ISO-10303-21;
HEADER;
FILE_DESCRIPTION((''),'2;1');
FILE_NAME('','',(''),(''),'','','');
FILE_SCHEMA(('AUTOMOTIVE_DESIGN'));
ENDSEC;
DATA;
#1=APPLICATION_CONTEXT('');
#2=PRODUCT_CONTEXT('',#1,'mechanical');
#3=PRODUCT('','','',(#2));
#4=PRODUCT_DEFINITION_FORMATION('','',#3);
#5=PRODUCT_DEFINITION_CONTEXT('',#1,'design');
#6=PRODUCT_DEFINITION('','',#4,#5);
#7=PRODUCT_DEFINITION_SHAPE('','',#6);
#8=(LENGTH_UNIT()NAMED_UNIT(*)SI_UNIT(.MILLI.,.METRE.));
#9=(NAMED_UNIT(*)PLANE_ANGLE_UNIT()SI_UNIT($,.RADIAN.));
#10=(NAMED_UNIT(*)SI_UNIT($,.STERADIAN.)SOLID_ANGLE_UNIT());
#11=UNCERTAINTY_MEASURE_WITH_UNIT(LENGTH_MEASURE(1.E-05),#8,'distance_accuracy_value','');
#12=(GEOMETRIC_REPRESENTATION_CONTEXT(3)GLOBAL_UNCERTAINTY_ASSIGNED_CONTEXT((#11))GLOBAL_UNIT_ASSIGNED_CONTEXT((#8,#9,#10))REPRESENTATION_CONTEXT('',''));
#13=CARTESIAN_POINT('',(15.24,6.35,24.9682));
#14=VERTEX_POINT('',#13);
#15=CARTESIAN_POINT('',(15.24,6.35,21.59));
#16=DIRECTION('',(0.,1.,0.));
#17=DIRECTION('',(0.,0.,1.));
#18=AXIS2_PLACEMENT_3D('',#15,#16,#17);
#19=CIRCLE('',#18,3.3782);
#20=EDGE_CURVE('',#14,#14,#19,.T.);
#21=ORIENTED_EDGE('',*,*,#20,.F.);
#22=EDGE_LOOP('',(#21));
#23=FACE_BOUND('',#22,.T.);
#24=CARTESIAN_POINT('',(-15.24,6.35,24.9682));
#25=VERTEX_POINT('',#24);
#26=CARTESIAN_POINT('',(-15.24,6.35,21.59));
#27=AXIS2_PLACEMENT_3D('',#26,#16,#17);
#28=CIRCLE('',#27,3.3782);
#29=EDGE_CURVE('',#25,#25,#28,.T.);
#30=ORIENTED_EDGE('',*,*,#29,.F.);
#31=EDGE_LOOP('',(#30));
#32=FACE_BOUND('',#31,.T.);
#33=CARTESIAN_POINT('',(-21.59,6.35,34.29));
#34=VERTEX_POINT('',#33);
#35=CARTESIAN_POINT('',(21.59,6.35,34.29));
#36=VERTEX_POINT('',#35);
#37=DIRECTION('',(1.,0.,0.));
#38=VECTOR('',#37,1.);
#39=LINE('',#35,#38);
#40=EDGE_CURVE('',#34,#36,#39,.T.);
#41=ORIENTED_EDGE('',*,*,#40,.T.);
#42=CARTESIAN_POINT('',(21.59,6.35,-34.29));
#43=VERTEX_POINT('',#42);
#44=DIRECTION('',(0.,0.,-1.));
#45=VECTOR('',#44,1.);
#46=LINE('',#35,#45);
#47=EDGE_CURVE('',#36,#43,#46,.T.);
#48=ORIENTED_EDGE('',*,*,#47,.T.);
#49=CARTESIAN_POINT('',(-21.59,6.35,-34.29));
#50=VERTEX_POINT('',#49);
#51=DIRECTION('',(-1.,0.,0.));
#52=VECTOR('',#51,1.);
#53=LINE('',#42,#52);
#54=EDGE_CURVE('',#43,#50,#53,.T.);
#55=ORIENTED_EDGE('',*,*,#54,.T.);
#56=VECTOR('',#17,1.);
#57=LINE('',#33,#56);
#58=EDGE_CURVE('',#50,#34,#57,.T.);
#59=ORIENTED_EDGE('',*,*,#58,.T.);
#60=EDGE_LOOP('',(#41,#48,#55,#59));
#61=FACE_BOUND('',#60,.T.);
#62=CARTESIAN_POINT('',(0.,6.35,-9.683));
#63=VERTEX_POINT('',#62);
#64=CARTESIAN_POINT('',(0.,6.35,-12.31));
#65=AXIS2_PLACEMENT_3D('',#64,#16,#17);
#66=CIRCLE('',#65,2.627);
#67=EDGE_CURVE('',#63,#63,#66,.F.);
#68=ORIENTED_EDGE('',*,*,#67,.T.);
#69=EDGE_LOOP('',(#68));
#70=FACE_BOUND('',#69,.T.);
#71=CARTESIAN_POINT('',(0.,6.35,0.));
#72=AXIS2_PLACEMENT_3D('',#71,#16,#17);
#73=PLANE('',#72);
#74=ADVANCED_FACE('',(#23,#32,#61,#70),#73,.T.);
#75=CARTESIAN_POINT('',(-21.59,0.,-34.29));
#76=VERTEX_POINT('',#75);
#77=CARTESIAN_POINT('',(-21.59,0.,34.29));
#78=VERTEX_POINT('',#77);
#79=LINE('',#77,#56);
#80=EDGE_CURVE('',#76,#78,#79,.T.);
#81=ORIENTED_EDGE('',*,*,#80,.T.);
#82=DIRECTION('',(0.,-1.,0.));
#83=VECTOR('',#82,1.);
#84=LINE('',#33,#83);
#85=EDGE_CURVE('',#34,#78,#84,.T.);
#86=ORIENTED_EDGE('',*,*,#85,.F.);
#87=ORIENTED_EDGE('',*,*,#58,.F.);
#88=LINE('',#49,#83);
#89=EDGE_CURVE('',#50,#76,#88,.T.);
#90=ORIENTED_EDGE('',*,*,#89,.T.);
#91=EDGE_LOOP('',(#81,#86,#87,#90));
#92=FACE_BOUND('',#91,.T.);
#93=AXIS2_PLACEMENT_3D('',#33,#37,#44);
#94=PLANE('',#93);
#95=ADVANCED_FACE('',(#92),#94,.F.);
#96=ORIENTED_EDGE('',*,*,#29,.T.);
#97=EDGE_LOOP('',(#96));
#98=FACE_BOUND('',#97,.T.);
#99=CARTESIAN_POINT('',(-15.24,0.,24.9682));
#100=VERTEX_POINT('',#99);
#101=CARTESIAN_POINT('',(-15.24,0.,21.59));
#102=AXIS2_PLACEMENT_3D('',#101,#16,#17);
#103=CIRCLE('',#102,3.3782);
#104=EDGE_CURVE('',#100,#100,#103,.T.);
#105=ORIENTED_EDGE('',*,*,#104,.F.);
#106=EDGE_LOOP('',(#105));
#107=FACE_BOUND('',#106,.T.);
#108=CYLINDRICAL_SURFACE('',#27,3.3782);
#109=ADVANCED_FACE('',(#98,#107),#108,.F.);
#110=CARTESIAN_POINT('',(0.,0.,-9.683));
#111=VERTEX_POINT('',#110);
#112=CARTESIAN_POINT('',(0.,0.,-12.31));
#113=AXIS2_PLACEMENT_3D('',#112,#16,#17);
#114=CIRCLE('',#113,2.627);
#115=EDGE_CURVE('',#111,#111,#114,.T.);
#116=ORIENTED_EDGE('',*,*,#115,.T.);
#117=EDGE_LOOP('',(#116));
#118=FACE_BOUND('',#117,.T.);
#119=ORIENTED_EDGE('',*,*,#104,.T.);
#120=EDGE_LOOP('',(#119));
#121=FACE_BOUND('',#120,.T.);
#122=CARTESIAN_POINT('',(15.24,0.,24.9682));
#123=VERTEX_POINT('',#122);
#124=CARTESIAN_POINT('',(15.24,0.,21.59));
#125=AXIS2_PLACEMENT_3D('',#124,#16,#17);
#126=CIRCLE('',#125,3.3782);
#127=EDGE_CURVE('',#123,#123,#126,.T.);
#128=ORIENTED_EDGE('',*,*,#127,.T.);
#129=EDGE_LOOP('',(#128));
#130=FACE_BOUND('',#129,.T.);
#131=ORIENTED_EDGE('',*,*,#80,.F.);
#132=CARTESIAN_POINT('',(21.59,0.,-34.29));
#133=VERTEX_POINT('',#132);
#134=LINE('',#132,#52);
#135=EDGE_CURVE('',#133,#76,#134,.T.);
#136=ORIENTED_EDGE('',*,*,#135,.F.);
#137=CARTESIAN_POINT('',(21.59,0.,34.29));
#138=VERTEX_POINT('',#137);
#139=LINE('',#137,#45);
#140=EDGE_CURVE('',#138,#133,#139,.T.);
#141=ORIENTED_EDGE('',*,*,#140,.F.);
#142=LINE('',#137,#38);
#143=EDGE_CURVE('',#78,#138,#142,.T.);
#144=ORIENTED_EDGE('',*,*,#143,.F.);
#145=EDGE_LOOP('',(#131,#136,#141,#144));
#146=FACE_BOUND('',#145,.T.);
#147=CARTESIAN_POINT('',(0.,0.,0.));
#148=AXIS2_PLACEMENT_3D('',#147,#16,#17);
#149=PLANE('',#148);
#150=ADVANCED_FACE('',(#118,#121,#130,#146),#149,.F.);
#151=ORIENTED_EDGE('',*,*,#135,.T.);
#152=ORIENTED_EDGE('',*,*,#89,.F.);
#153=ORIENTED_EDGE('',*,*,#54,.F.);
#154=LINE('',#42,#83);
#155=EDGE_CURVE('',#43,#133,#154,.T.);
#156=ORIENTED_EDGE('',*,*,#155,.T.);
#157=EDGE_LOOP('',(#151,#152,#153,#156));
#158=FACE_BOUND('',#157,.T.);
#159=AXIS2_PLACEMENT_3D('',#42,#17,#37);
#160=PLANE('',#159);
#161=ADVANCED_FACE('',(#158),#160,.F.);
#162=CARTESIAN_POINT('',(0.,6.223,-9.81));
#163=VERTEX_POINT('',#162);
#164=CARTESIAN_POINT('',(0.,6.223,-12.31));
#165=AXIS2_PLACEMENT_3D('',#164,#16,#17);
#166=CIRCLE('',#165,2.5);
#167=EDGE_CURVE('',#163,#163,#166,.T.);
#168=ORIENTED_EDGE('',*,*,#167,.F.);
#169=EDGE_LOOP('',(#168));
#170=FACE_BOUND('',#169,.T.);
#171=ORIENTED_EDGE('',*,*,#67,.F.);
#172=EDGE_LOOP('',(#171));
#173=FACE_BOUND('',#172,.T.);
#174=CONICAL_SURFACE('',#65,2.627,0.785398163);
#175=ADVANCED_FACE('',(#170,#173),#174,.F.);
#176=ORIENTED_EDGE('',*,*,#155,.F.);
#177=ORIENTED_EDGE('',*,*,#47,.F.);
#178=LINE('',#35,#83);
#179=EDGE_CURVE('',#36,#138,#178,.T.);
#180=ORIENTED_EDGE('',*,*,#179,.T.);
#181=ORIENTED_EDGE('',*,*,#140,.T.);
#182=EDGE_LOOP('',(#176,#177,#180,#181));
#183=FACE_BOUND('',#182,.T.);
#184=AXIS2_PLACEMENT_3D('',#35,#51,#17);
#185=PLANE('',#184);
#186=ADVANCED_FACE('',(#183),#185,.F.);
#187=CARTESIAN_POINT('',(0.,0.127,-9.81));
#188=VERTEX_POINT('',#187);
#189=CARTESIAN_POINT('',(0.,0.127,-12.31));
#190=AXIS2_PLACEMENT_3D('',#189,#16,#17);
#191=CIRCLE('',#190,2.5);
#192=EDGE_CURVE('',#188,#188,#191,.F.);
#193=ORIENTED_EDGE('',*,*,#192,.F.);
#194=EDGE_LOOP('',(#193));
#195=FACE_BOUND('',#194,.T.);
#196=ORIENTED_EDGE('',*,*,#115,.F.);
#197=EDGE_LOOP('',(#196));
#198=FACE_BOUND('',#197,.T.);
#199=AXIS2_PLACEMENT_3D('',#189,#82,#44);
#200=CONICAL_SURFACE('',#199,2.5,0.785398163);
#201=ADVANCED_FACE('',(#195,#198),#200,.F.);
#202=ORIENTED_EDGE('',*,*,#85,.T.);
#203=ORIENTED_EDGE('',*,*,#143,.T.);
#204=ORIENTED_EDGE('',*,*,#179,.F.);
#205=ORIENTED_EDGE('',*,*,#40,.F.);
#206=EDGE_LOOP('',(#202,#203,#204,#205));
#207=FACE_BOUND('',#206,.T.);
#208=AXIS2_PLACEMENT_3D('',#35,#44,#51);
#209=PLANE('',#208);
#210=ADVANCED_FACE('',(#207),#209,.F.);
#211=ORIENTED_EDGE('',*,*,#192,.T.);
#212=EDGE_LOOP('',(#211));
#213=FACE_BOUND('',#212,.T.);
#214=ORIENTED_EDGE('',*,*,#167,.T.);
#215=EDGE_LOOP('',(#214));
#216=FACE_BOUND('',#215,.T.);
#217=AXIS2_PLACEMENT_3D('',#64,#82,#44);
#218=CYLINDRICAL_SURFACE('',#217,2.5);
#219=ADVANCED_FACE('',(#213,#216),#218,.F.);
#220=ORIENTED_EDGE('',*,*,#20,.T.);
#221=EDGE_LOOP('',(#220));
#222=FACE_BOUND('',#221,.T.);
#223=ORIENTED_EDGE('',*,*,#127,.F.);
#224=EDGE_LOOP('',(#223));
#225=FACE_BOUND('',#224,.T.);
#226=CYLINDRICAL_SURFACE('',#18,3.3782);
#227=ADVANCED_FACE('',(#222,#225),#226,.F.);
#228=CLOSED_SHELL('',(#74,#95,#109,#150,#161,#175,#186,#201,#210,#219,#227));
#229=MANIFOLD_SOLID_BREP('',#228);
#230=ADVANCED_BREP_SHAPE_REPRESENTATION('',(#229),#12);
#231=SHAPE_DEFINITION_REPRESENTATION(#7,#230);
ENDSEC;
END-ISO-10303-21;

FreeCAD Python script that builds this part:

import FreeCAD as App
import Part
import Sketcher
from FreeCAD import Vector
Q = App.Units.Quantity


def edges_at(feature, points):
    """Names of the edges that pass closest to the given points."""
    edges = feature.Shape.Edges
    near = lambda p: min(range(len(edges)), key=lambda i: edges[i].distToShape(Part.Vertex(*p))[0])
    return sorted({f"Edge{near(p) + 1}" for p in points})


def add_polygon(sketch, points):
    """Adds a closed chain of lines whose ends are joined by coincident constraints."""
    first, n = sketch.GeometryCount, len(points)
    for a, b in zip(points, points[1:] + points[:1]):
        sketch.addGeometry(Part.LineSegment(App.Vector(*a, 0), App.Vector(*b, 0)), False)
    for i in range(n):
        sketch.addConstraint(Sketcher.Constraint("Coincident", first + i, 2, first + (i + 1) % n, 1))

doc = App.newDocument("Part")
body = doc.addObject("PartDesign::Body", "Body")

# Sketch on XZ plane
sketch1 = body.newObject("Sketcher::SketchObject", "Sketch")
sketch1.AttachmentSupport = (doc.getObject("XZ_Plane"), [""])
sketch1.MapMode = "FlatFace"
add_polygon(sketch1, [(-22, -34), (-22, 34), (22, 34), (22, -34)])  # lines 0-3
sketch1.addConstraint(Sketcher.Constraint("Vertical", 0))
sketch1.addConstraint(Sketcher.Constraint("Horizontal", 1))
sketch1.addConstraint(Sketcher.Constraint("Vertical", 2))
sketch1.addConstraint(Sketcher.Constraint("Horizontal", 3))
sketch1.addConstraint(Sketcher.Constraint("Symmetric", 0, 2, 2, 2, -1, 1))
sketch1.addConstraint(Sketcher.Constraint("DistanceX", 1, 1, 1, 2, Q("1.7 in")))
sketch1.addConstraint(Sketcher.Constraint("DistanceY", 0, 1, 0, 2, Q("2.7 in")))
pad1 = body.newObject("PartDesign::Pad", "Pad")
pad1.Profile = sketch1
pad1.Length = Q("0.25 in")
pad1.Reversed = True

# Sketch on XZ plane
sketch2 = body.newObject("Sketcher::SketchObject", "Sketch001")
sketch2.AttachmentSupport = (doc.getObject("XZ_Plane"), [""])
sketch2.MapMode = "FlatFace"
sketch2.AttachmentOffset = App.Placement(Vector(0, 0, -0.25 * 25.4), App.Rotation())
sketch2.addGeometry(Part.Circle(Vector(15.2, 21.6, 0), Vector(0, 0, 1), 3.4), False)
sketch2.addGeometry(Part.Circle(Vector(-15.2, 21.6, 0), Vector(0, 0, 1), 3.4), False)
sketch2.addConstraint(Sketcher.Constraint("Equal", 0, 1))
sketch2.addConstraint(Sketcher.Constraint("Symmetric", 0, 3, 1, 3, -2))
sketch2.addConstraint(Sketcher.Constraint("Diameter", 0, Q("0.266 in")))
sketch2.addConstraint(Sketcher.Constraint("DistanceX", -1, 1, 0, 3, Q("0.6 in")))
sketch2.addConstraint(Sketcher.Constraint("DistanceY", -1, 1, 0, 3, Q("0.85 in")))
doc.recompute()
hole = body.newObject("PartDesign::Hole", "Hole")
hole.Profile = sketch2
hole.ThreadType = "None"
hole.Diameter = Q("0.266 in")
hole.DepthType = "ThroughAll"
hole.Reversed = True

# Sketch on XZ plane
sketch3 = body.newObject("Sketcher::SketchObject", "Sketch002")
sketch3.AttachmentSupport = (doc.getObject("XZ_Plane"), [""])
sketch3.MapMode = "FlatFace"
sketch3.addGeometry(Part.Circle(Vector(0, -12.3, 0), Vector(0, 0, 1), 2.5), False)
sketch3.addConstraint(Sketcher.Constraint("PointOnObject", 0, 3, -2))
sketch3.addConstraint(Sketcher.Constraint("Diameter", 0, Q("5 mm")))
sketch3.addConstraint(Sketcher.Constraint("DistanceY", 0, 3, -1, 1, Q("12.31 mm")))
pocket1 = body.newObject("PartDesign::Pocket", "Pocket")
pocket1.Profile = sketch3
pocket1.Type = "ThroughAll"
doc.recompute()

chamfer = body.newObject("PartDesign::Chamfer", "Chamfer")
chamfer.Base = (pocket1, edges_at(pocket1, [(-2.5, 6.35, -12.31), (-2.5, 0, -12.31)]))
chamfer.Size = Q("0.005 in")

doc.recompute()
